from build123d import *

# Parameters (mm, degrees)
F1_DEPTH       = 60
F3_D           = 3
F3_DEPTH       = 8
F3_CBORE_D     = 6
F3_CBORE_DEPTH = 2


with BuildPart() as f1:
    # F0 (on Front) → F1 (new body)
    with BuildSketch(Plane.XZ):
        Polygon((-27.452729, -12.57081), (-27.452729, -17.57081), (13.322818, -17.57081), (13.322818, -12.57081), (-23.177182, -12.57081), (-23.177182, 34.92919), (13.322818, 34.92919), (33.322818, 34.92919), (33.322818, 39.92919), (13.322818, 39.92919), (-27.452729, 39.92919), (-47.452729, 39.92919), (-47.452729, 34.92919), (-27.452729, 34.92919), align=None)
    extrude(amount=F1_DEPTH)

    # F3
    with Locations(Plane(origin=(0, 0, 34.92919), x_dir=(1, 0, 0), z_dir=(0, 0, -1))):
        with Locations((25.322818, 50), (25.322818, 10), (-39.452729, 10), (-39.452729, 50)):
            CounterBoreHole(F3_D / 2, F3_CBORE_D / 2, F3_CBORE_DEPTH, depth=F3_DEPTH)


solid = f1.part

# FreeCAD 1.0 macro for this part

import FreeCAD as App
import Part
import Sketcher

V = App.Vector


def add_polygon(sketch, points):
    """Adds a closed chain of lines whose ends are joined by coincident constraints."""
    first, n = sketch.GeometryCount, len(points)
    for a, b in zip(points, points[1:] + points[:1]):
        sketch.addGeometry(Part.LineSegment(App.Vector(*a, 0), App.Vector(*b, 0)), False)
    for i in range(n):
        sketch.addConstraint(Sketcher.Constraint("Coincident", first + i, 2, first + (i + 1) % n, 1))

doc = App.newDocument("Part")
body = doc.addObject("PartDesign::Body", "Body")

sketch1 = doc.addObject("Sketcher::SketchObject", "Sketch")
body.addObject(sketch1)
sketch1.AttachmentSupport = (doc.XZ_Plane, [""])
sketch1.MapMode = "FlatFace"
add_polygon(sketch1, [(-27, -18), (13, -18), (13, -13), (-23, -13), (-23, 35), (33, 35), (33, 40), (-47, 40), (-47, 35), (-27, 35)])
sketch1.addConstraint(Sketcher.Constraint("Horizontal", 0))
sketch1.addConstraint(Sketcher.Constraint("Vertical", 1))
sketch1.addConstraint(Sketcher.Constraint("Horizontal", 2))
sketch1.addConstraint(Sketcher.Constraint("Vertical", 3))
sketch1.addConstraint(Sketcher.Constraint("Horizontal", 4))
sketch1.addConstraint(Sketcher.Constraint("Vertical", 5))
sketch1.addConstraint(Sketcher.Constraint("Horizontal", 6))
sketch1.addConstraint(Sketcher.Constraint("Vertical", 7))
sketch1.addConstraint(Sketcher.Constraint("Horizontal", 8))
sketch1.addConstraint(Sketcher.Constraint("Vertical", 9))
sketch1.addConstraint(Sketcher.Constraint("Horizontal", 4, 2, 7, 2))
sketch1.addConstraint(Sketcher.Constraint("Equal", 1, 5))
sketch1.addConstraint(Sketcher.Constraint("DistanceX", 8, 1, 8, 2, 20.0))
sketch1.addConstraint(Sketcher.Constraint("DistanceY", 1, 1, 1, 2, 5.0))
sketch1.addConstraint(Sketcher.Constraint("DistanceX", 2, 2, 2, 1, 36.5))
sketch1.addConstraint(Sketcher.Constraint("DistanceX", 4, 1, 4, 2, 56.5))
sketch1.addConstraint(Sketcher.Constraint("DistanceY", 3, 1, 3, 2, 47.5))
sketch1.addConstraint(Sketcher.Constraint("DistanceX", 0, 1, 0, 2, 40.775547))
sketch1.addConstraint(Sketcher.Constraint("DistanceY", 0, 2, -1, 1, 17.57081))
sketch1.addConstraint(Sketcher.Constraint("DistanceX", 2, 2, -1, 1, 23.177182))
pad1 = doc.addObject("PartDesign::Pad", "Pad")
body.addObject(pad1)
pad1.Profile = sketch1
pad1.Length = 60

sketch2 = doc.addObject("Sketcher::SketchObject", "Sketch001")
body.addObject(sketch2)
sketch2.AttachmentSupport = (doc.XY_Plane, [""])
sketch2.MapMode = "FlatFace"
sketch2.AttachmentOffset = App.Placement(V(0, 0, 34.92919), App.Rotation())
sketch2.addGeometry(Part.Circle(V(25.3, -50, 0), V(0, 0, 1), 1.5), False)
sketch2.addGeometry(Part.Circle(V(25.3, -10, 0), V(0, 0, 1), 1.5), False)
sketch2.addGeometry(Part.Circle(V(-39.5, -10, 0), V(0, 0, 1), 1.5), False)
sketch2.addGeometry(Part.Circle(V(-39.5, -50, 0), V(0, 0, 1), 1.5), False)
sketch2.addConstraint(Sketcher.Constraint("Equal", 0, 1))
sketch2.addConstraint(Sketcher.Constraint("Equal", 1, 2))
sketch2.addConstraint(Sketcher.Constraint("Equal", 2, 3))
sketch2.addConstraint(Sketcher.Constraint("Horizontal", 1, 3, 2, 3))
sketch2.addConstraint(Sketcher.Constraint("Horizontal", 0, 3, 3, 3))
sketch2.addConstraint(Sketcher.Constraint("Vertical", 0, 3, 1, 3))
sketch2.addConstraint(Sketcher.Constraint("Vertical", 2, 3, 3, 3))
sketch2.addConstraint(Sketcher.Constraint("Diameter", 0, 3.0))
sketch2.addConstraint(Sketcher.Constraint("DistanceY", 0, 3, -1, 1, 50.0))
sketch2.addConstraint(Sketcher.Constraint("DistanceY", 1, 3, -1, 1, 10.0))
sketch2.addConstraint(Sketcher.Constraint("DistanceX", -1, 1, 0, 3, 25.322818))
sketch2.addConstraint(Sketcher.Constraint("DistanceX", 2, 3, -1, 1, 39.452729))
doc.recompute()
hole = doc.addObject("PartDesign::Hole", "Hole")
body.addObject(hole)
hole.Profile = sketch2
hole.ThreadType = "None"
hole.Diameter = 3
hole.DepthType = "Dimension"
hole.Depth = 8
hole.DrillPoint = "Flat"
hole.HoleCutType = "Counterbore"
hole.HoleCutDiameter = 6
hole.HoleCutDepth = 2
hole.Reversed = True

doc.recompute()
